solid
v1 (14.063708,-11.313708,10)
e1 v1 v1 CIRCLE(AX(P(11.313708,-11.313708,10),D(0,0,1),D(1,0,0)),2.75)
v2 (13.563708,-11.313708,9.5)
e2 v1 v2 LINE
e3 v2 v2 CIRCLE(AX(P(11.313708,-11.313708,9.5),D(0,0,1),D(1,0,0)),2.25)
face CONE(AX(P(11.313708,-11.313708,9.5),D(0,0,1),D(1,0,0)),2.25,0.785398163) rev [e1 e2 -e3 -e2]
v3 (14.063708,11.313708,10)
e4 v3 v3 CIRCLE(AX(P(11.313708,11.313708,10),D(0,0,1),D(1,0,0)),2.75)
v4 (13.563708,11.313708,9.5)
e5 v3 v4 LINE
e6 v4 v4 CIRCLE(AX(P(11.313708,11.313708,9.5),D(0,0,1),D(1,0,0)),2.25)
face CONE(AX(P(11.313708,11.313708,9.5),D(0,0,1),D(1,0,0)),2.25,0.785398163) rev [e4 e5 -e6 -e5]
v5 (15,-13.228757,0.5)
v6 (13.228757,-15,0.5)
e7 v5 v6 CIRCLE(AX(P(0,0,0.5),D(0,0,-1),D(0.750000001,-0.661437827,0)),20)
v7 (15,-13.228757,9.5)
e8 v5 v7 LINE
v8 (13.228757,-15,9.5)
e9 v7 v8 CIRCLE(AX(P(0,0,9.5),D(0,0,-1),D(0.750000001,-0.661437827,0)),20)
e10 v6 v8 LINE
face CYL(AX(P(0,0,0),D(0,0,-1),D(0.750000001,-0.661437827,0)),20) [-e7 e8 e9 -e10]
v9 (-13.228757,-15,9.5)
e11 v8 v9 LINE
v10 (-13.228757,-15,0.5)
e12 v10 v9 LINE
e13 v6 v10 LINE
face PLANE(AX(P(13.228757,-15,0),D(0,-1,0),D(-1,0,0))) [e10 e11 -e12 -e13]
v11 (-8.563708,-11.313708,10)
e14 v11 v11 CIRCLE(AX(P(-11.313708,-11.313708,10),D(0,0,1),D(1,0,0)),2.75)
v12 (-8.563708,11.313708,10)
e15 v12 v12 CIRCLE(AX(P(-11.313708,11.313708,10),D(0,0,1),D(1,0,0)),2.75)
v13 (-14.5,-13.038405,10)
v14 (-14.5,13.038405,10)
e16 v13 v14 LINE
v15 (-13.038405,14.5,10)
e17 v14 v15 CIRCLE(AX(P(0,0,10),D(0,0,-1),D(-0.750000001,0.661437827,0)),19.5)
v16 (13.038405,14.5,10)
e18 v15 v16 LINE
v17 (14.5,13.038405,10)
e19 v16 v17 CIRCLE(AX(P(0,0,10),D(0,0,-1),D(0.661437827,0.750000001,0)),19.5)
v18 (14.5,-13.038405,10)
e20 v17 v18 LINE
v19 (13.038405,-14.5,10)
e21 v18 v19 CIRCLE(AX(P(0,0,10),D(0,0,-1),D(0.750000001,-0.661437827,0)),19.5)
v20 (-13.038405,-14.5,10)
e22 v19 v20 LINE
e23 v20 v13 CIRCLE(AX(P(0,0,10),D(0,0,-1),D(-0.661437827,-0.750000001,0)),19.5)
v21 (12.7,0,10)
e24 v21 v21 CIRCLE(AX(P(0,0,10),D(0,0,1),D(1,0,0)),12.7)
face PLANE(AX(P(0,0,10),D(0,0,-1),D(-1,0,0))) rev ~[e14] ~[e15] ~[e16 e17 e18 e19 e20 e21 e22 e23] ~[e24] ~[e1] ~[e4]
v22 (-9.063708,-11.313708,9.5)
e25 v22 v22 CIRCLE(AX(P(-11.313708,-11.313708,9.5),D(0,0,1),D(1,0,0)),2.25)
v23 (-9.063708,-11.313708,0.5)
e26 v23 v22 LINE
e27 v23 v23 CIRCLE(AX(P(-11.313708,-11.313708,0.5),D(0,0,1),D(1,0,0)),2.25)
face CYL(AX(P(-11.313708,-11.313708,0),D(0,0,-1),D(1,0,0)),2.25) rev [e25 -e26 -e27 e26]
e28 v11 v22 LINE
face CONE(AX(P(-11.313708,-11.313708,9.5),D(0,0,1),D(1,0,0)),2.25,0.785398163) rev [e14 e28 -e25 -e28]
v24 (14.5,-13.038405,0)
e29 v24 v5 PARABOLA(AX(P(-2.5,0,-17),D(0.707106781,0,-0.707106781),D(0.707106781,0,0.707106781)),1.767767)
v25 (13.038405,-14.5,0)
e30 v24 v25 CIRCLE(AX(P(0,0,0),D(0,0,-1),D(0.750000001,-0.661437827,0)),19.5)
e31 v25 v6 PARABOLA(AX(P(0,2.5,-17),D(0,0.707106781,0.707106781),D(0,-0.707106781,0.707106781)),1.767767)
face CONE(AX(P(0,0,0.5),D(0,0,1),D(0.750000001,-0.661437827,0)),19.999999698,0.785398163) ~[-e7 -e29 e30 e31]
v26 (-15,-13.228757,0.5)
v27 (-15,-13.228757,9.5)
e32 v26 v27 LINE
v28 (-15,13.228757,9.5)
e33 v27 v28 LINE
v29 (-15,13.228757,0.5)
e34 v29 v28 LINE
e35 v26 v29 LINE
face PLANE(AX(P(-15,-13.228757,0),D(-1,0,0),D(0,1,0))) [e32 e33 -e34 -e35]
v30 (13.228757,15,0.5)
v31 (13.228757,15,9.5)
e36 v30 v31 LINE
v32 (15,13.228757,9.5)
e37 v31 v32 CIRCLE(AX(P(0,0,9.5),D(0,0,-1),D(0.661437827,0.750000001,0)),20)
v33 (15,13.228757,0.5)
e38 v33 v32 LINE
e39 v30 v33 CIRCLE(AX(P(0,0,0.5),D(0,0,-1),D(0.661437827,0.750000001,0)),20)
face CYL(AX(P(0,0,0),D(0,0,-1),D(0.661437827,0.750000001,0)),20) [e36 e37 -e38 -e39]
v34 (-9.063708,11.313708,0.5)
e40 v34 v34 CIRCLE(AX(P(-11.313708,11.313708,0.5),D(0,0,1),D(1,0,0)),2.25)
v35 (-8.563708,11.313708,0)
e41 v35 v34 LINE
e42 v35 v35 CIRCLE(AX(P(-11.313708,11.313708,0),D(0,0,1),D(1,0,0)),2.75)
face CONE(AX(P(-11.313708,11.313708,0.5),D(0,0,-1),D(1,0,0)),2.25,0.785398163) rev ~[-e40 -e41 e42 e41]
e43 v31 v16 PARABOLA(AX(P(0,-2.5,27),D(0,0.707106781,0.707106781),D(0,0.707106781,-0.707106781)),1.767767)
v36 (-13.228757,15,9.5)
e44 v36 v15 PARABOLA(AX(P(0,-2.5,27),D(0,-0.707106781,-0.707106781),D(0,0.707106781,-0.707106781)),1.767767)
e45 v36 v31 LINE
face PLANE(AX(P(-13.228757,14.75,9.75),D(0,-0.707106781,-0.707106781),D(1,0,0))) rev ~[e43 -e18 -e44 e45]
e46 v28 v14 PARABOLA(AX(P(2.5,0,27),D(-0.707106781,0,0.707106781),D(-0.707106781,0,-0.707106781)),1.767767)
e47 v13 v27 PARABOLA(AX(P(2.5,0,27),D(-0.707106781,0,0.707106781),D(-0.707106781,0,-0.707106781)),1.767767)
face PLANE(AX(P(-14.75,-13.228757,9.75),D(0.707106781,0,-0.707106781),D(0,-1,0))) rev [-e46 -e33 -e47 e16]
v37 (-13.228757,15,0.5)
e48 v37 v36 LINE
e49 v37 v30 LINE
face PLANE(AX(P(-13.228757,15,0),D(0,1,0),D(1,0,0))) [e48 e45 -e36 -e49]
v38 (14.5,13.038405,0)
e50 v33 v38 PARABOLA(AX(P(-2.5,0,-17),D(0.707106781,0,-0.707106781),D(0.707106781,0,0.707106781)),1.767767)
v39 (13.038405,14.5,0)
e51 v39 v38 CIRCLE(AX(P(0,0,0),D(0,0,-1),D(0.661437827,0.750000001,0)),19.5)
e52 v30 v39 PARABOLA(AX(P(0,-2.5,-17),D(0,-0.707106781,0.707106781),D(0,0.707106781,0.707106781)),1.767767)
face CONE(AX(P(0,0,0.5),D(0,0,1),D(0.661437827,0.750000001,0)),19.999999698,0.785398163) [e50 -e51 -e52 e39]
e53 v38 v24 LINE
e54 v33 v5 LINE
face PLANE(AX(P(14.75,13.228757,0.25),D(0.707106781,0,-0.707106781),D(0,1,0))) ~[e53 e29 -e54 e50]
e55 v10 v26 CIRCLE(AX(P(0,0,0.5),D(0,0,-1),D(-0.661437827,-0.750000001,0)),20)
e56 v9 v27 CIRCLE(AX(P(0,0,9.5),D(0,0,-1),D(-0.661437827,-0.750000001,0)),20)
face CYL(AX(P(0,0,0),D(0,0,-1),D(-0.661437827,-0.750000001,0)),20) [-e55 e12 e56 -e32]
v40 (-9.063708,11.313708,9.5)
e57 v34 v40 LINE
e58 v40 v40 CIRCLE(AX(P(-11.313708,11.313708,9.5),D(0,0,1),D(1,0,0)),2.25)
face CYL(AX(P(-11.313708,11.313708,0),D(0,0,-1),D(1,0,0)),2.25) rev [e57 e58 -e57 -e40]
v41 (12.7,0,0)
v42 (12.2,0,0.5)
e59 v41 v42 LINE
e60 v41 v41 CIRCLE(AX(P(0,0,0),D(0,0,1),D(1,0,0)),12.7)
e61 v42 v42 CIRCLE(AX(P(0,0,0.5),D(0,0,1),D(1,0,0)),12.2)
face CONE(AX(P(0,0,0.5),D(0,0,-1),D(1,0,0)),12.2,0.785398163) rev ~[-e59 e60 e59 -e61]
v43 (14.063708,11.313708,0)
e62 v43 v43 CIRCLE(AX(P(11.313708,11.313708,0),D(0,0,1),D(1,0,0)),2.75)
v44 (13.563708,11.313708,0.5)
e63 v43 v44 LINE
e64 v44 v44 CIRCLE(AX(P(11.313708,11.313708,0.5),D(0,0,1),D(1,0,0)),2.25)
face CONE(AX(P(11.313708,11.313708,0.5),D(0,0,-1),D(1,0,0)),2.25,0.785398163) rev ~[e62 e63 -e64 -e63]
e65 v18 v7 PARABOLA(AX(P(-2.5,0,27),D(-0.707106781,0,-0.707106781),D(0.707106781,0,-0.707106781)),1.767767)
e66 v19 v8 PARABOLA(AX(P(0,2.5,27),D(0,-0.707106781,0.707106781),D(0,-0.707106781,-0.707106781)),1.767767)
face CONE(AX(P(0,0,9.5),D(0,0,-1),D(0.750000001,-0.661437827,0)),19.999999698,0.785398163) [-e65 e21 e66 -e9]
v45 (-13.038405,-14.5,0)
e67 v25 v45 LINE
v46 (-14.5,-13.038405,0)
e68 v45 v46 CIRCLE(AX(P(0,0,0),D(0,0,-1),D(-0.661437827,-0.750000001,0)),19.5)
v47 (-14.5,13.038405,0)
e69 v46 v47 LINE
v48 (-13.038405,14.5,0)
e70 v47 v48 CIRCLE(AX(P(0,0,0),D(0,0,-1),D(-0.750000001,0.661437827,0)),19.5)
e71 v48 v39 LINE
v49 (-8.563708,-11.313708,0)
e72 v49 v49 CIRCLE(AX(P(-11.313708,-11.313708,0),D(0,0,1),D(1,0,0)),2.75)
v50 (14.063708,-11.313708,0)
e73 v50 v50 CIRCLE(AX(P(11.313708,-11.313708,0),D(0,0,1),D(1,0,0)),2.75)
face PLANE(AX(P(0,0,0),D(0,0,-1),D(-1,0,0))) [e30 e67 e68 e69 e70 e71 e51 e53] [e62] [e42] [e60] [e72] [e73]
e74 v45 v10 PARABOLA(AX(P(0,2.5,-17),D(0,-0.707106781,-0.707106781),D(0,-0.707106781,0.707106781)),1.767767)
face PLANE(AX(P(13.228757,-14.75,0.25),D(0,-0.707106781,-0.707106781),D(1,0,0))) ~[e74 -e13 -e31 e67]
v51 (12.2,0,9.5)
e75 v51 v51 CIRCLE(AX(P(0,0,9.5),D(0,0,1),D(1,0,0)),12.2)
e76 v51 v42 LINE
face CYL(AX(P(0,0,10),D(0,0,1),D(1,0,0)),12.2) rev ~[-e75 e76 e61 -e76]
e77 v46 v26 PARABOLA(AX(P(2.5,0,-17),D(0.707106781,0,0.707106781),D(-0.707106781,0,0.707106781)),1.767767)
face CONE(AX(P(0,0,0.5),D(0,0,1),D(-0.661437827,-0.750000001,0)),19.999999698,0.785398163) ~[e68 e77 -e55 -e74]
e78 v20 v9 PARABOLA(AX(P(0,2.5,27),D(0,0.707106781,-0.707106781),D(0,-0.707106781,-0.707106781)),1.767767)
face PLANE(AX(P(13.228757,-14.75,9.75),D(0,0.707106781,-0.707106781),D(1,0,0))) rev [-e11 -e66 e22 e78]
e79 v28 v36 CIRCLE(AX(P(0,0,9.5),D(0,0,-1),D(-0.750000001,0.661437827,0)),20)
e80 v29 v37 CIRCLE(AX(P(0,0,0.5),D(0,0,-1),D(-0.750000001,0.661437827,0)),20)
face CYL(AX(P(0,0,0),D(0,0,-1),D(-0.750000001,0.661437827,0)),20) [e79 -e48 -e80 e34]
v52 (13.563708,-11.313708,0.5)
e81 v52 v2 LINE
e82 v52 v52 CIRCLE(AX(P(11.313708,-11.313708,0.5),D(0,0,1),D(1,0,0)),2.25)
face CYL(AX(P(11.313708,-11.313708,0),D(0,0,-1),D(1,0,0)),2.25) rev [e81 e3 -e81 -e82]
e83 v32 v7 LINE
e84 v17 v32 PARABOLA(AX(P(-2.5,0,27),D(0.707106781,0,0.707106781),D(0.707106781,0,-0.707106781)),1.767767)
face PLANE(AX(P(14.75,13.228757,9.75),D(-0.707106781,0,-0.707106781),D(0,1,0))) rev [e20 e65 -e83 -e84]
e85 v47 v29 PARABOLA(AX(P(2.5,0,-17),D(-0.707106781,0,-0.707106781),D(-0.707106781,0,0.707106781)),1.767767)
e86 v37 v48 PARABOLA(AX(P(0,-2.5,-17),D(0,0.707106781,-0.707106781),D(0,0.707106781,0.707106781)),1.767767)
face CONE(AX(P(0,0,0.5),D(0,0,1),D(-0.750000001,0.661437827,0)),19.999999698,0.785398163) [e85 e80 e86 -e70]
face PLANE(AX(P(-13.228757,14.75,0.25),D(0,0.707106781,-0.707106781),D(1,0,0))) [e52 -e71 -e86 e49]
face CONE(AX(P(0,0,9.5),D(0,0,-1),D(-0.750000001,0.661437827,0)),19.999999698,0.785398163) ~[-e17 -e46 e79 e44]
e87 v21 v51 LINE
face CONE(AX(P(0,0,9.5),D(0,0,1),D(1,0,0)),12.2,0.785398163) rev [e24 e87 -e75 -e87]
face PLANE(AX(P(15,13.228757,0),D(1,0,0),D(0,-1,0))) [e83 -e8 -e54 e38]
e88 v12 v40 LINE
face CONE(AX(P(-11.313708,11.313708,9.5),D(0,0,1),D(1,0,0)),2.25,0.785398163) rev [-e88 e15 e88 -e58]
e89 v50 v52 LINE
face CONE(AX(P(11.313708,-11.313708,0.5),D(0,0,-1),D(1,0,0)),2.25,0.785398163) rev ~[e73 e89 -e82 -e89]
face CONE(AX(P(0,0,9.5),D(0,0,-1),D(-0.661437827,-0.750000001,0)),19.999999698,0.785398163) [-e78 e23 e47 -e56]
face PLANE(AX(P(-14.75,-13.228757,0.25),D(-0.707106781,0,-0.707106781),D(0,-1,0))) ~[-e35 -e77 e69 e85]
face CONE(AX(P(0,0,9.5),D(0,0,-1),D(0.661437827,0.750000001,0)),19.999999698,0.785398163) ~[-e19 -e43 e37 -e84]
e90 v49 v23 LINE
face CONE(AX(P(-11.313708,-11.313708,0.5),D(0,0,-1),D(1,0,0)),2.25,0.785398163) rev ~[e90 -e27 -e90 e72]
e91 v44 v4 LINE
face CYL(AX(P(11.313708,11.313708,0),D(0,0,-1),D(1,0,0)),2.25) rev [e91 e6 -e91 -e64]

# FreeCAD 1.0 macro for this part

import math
import FreeCAD as App
import Part
import Sketcher
from FreeCAD import Vector
Q = App.Units.Quantity


def edges_at(feature, points):
    """Names of the edges that pass closest to the given points."""
    edges = feature.Shape.Edges
    near = lambda p: min(range(len(edges)), key=lambda i: edges[i].distToShape(Part.Vertex(*p))[0])
    return sorted({f"Edge{near(p) + 1}" for p in points})

doc = App.newDocument("Part")
body = doc.addObject("PartDesign::Body", "Body")

# Sketch on XY plane
sketch1 = body.newObject("Sketcher::SketchObject", "Sketch")
sketch1.AttachmentSupport = (doc.getObject("XY_Plane"), [""])
sketch1.MapMode = "FlatFace"
sketch1.addGeometry(Part.LineSegment(Vector(13.228757, 15, 0), Vector(-13.228757, 15, 0)), False)
sketch1.addGeometry(Part.ArcOfCircle(Part.Circle(Vector(0, 0, 0), Vector(0, 0, 1), 20), math.radians(131.409622), math.radians(138.590378)), False)
sketch1.addGeometry(Part.LineSegment(Vector(-15, 13.228757, 0), Vector(-15, -13.228757, 0)), False)
sketch1.addGeometry(Part.ArcOfCircle(Part.Circle(Vector(0, 0, 0), Vector(0, 0, 1), 20), math.radians(-138.590378), math.radians(-131.409622)), False)
sketch1.addGeometry(Part.LineSegment(Vector(-13.228757, -15, 0), Vector(13.228757, -15, 0)), False)
sketch1.addGeometry(Part.ArcOfCircle(Part.Circle(Vector(0, 0, 0), Vector(0, 0, 1), 20), math.radians(-48.590378), math.radians(-41.409622)), False)
sketch1.addGeometry(Part.LineSegment(Vector(15, -13.228757, 0), Vector(15, 13.228757, 0)), False)
sketch1.addGeometry(Part.ArcOfCircle(Part.Circle(Vector(0, 0, 0), Vector(0, 0, 1), 20), math.radians(41.409622), math.radians(48.590378)), False)
sketch1.addGeometry(Part.Circle(Vector(11.313708, -11.313708, 0), Vector(0, 0, 1), 2.25), False)
sketch1.addGeometry(Part.Circle(Vector(-11.313708, -11.313708, 0), Vector(0, 0, 1), 2.25), False)
sketch1.addGeometry(Part.Circle(Vector(11.313708, 11.313708, 0), Vector(0, 0, 1), 2.25), False)
sketch1.addGeometry(Part.Circle(Vector(-11.313708, 11.313708, 0), Vector(0, 0, 1), 2.25), False)
sketch1.addConstraint(Sketcher.Constraint("Coincident", 0, 2, 1, 1))
sketch1.addConstraint(Sketcher.Constraint("Coincident", 1, 2, 2, 1))
sketch1.addConstraint(Sketcher.Constraint("Coincident", 2, 2, 3, 1))
sketch1.addConstraint(Sketcher.Constraint("Coincident", 3, 2, 4, 1))
sketch1.addConstraint(Sketcher.Constraint("Coincident", 4, 2, 5, 1))
sketch1.addConstraint(Sketcher.Constraint("Coincident", 5, 2, 6, 1))
sketch1.addConstraint(Sketcher.Constraint("Coincident", 6, 2, 7, 1))
sketch1.addConstraint(Sketcher.Constraint("Coincident", 7, 2, 0, 1))
sketch1.addConstraint(Sketcher.Constraint("Horizontal", 0))
sketch1.addConstraint(Sketcher.Constraint("Vertical", 2))
sketch1.addConstraint(Sketcher.Constraint("Horizontal", 4))
sketch1.addConstraint(Sketcher.Constraint("Vertical", 6))
sketch1.addConstraint(Sketcher.Constraint("Coincident", 1, 3, -1, 1))
sketch1.addConstraint(Sketcher.Constraint("Coincident", 3, 3, -1, 1))
sketch1.addConstraint(Sketcher.Constraint("Coincident", 5, 3, -1, 1))
sketch1.addConstraint(Sketcher.Constraint("Coincident", 7, 3, -1, 1))
sketch1.addConstraint(Sketcher.Constraint("Equal", 1, 3))
sketch1.addConstraint(Sketcher.Constraint("Equal", 3, 5))
sketch1.addConstraint(Sketcher.Constraint("Equal", 5, 7))
sketch1.addConstraint(Sketcher.Constraint("Equal", 8, 9))
sketch1.addConstraint(Sketcher.Constraint("Equal", 9, 10))
sketch1.addConstraint(Sketcher.Constraint("Equal", 10, 11))
sketch1.addConstraint(Sketcher.Constraint("Symmetric", 9, 3, 10, 3, -1, 1))
sketch1.addConstraint(Sketcher.Constraint("Symmetric", 8, 3, 11, 3, -1, 1))
sketch1.addConstraint(Sketcher.Constraint("Symmetric", 8, 3, 9, 3, -2))
sketch1.addConstraint(Sketcher.Constraint("Horizontal", 2, 2, 5, 2))
sketch1.addConstraint(Sketcher.Constraint("Vertical", 0, 2, 3, 2))
sketch1.addConstraint(Sketcher.Constraint("Equal", 4, 2))
sketch1.addConstraint(Sketcher.Constraint("Radius", 1, Q("20 mm")))
sketch1.addConstraint(Sketcher.Constraint("Diameter", 8, Q("4.5 mm")))
sketch1.addConstraint(Sketcher.Constraint("DistanceY", -1, 1, 0, 2, Q("15 mm")))
sketch1.addConstraint(Sketcher.Constraint("DistanceX", -1, 1, 8, 3, Q("11.313708 mm")))
sketch1.addConstraint(Sketcher.Constraint("DistanceY", 8, 3, -1, 1, Q("11.313708 mm")))
pad1 = body.newObject("PartDesign::Pad", "Pad")
pad1.Profile = sketch1
pad1.Length = 10

# Sketch on XY plane
sketch2 = body.newObject("Sketcher::SketchObject", "Sketch001")
sketch2.AttachmentSupport = (doc.getObject("XY_Plane"), [""])
sketch2.MapMode = "FlatFace"
sketch2.AttachmentOffset = App.Placement(Vector(0, 0, 10), App.Rotation())
sketch2.addGeometry(Part.Circle(Vector(0, 0, 0), Vector(0, 0, 1), 12.2), False)
sketch2.addConstraint(Sketcher.Constraint("Coincident", 0, 3, -1, 1))
sketch2.addConstraint(Sketcher.Constraint("Diameter", 0, Q("24.4 mm")))
pocket1 = body.newObject("PartDesign::Pocket", "Pocket")
pocket1.Profile = sketch2
pocket1.Type = "ThroughAll"
doc.recompute()

chamfer = body.newObject("PartDesign::Chamfer", "Chamfer")
chamfer.Base = (pocket1, edges_at(pocket1, [
    (-14.142, -14.142, 10),
    (-15, 0, 0),
    (-14.142, 14.142, 0),
    (0, -15, 10),
    (14.142, -14.142, 10),
    (15, 0, 10),
    (-13.564, 11.314, 0),
    (-13.564, 11.314, 10),
    (14.142, 14.142, 10),
    (9.064, 11.314, 0),
    (9.064, 11.314, 10),
    (0, 15, 10),
    (9.064, -11.314, 0),
    (9.064, -11.314, 10),
    (-13.564, -11.314, 0),
    (-13.564, -11.314, 10),
    (-14.142, 14.142, 10),
    (-12.2, 0, 0),
    (-12.2, 0, 10),
    (-15, 0, 10),
    (0, 15, 0),
    (14.142, 14.142, 0),
    (15, 0, 0),
    (14.142, -14.142, 0),
    (0, -15, 0),
    (-14.142, -14.142, 0),
]))
chamfer.Size = 0.5

doc.recompute()
